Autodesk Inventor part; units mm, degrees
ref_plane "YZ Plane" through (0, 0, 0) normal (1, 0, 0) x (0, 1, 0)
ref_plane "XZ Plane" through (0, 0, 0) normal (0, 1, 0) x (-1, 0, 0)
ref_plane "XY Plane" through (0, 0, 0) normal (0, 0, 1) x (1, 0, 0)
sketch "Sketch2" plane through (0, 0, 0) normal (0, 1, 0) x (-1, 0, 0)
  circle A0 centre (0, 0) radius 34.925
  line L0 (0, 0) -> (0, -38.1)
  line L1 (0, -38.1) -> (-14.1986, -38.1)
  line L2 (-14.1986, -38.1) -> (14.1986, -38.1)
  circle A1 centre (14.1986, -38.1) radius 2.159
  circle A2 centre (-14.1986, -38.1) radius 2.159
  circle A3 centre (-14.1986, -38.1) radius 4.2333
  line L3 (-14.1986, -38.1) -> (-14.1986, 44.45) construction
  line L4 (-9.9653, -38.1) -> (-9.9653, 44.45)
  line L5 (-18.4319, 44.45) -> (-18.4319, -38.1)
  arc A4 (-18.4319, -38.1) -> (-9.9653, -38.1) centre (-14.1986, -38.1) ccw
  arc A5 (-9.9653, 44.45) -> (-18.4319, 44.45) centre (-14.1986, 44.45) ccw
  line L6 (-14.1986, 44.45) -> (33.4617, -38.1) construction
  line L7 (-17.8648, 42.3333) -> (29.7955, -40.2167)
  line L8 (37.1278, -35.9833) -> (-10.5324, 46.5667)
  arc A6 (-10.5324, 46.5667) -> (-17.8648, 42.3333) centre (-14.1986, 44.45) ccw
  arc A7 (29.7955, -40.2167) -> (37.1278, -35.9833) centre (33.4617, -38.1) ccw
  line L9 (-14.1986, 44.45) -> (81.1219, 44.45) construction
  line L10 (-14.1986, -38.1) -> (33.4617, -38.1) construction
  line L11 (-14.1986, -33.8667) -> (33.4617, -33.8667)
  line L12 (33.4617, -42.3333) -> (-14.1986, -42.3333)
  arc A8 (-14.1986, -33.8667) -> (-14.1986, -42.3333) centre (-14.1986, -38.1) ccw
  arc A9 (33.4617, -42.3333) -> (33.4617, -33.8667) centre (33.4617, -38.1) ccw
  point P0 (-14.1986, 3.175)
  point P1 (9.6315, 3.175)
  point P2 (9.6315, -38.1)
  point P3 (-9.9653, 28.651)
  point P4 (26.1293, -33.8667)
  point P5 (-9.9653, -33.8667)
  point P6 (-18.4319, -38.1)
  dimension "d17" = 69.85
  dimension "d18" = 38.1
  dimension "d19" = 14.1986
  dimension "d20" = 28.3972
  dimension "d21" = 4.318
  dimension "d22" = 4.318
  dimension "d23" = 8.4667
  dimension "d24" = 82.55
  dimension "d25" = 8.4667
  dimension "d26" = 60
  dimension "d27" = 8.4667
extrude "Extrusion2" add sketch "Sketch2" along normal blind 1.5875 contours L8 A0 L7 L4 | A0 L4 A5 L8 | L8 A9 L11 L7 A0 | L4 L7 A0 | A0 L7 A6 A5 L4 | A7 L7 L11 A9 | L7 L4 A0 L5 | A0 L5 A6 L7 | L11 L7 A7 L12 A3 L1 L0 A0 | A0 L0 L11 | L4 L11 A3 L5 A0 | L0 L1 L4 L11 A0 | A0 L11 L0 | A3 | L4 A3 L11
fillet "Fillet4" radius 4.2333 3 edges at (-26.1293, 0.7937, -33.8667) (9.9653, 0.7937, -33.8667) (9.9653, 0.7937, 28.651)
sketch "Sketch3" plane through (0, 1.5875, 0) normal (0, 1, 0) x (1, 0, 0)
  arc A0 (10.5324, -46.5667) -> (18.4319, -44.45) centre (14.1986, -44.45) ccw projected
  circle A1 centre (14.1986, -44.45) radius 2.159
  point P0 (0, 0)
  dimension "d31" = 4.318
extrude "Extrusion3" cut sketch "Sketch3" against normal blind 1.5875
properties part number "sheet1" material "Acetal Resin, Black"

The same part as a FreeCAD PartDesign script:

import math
import FreeCAD as App
import Part
import Sketcher
Q = App.Units.Quantity


def edges_at(feature, points):
    """Names of the edges that pass closest to the given points."""
    edges = feature.Shape.Edges
    near = lambda p: min(range(len(edges)), key=lambda i: edges[i].distToShape(Part.Vertex(*p))[0])
    return sorted({f"Edge{near(p) + 1}" for p in points})

doc = App.newDocument("Part")
body = doc.addObject("PartDesign::Body", "Body")

# Sketch on XZ plane
sketch1 = body.newObject("Sketcher::SketchObject", "Sketch")
sketch1.AttachmentSupport = (doc.getObject("XZ_Plane"), [""])
sketch1.MapMode = "FlatFace"
sketch1.addGeometry([
    Part.ArcOfCircle(Part.Circle(App.Vector(14.1986, 44.45, 0), App.Vector(0, 0, 1), 4.2333), math.radians(0), math.radians(149.999784)),  # 0
    Part.LineSegment(App.Vector(18.4319, 44.45, 0), App.Vector(18.4319, -38.1, 0)),  # 1
    Part.ArcOfCircle(Part.Circle(App.Vector(14.1986, -38.1, 0), App.Vector(0, 0, 1), 4.2333), math.radians(-90), math.radians(0)),  # 2
    Part.LineSegment(App.Vector(14.1986, -42.3333, 0), App.Vector(-33.4617, -42.3333, 0)),  # 3
    Part.ArcOfCircle(Part.Circle(App.Vector(-33.4617, -38.1, 0), App.Vector(0, 0, 1), 4.2333), math.radians(149.999107), math.radians(270)),  # 4
    Part.LineSegment(App.Vector(-37.1278, -35.9833, 0), App.Vector(10.5324, 46.5667, 0)),  # 5
    Part.LineSegment(App.Vector(9.9653, 28.650975, 0), App.Vector(-26.129323, -33.8667, 0)),  # 6
    Part.LineSegment(App.Vector(-26.129323, -33.8667, 0), App.Vector(9.9653, -33.8667, 0)),  # 7
    Part.LineSegment(App.Vector(9.9653, -33.8667, 0), App.Vector(9.9653, 28.650975, 0)),  # 8
    Part.Circle(App.Vector(-14.1986, -38.1, 0), App.Vector(0, 0, 1), 2.159),  # 9
    Part.Circle(App.Vector(14.1986, -38.1, 0), App.Vector(0, 0, 1), 2.159),  # 10
], False)
sketch1.addConstraint([
    Sketcher.Constraint("Tangent", 0, 1, 1, 1),
    Sketcher.Constraint("Tangent", 1, 2, 2, 2),
    Sketcher.Constraint("Tangent", 2, 1, 3, 1),
    Sketcher.Constraint("Tangent", 3, 2, 4, 2),
    Sketcher.Constraint("Tangent", 4, 1, 5, 1),
    Sketcher.Constraint("Tangent", 5, 2, 0, 2),
    Sketcher.Constraint("Coincident", 6, 2, 7, 1),
    Sketcher.Constraint("Coincident", 7, 2, 8, 1),
    Sketcher.Constraint("Coincident", 8, 2, 6, 1),
    Sketcher.Constraint("Vertical", 1),
    Sketcher.Constraint("Horizontal", 3),
    Sketcher.Constraint("Horizontal", 7),
    Sketcher.Constraint("Vertical", 8),
    Sketcher.Constraint("Coincident", 10, 3, 2, 3),
    Sketcher.Constraint("Equal", 0, 2),
    Sketcher.Constraint("Equal", 2, 4),
    Sketcher.Constraint("Equal", 9, 10),
    Sketcher.Constraint("Symmetric", 2, 3, 9, 3, -2),
    Sketcher.Constraint("Parallel", 5, 6),
    Sketcher.Constraint("Diameter", 9, Q("0.17 in")),
    Sketcher.Constraint("Angle", 5, Q("60 deg")),
    Sketcher.Constraint("DistanceY", 1, 2, 1, 1, Q("3.25 in")),
    Sketcher.Constraint("DistanceY", 2, 3, -1, 1, Q("1.5 in")),
    Sketcher.Constraint("Radius", 0, Q("4.2333 mm")),
    Sketcher.Constraint("DistanceX", -1, 1, 0, 3, Q("0.559 in")),
    Sketcher.Constraint("DistanceY", 3, 2, 6, 2, Q("8.4666 mm")),
    Sketcher.Constraint("DistanceX", 7, 2, 1, 2, Q("8.4666 mm")),
    Sketcher.Constraint("DistanceY", -1, 1, 8, 2, Q("1.128 in")),
])
pad1 = body.newObject("PartDesign::Pad", "Pad")
pad1.Profile = sketch1
pad1.Length = Q("0.0625 in")
pad1.Reversed = True
doc.recompute()

fillet = body.newObject("PartDesign::Fillet", "Fillet")
fillet.Base = (pad1, edges_at(pad1, [(-26.129, 0.794, -33.867), (9.965, 0.794, -33.867), (9.965, 0.794, 28.651)]))
fillet.Radius = 4.2333

# Sketch on XZ plane
sketch2 = body.newObject("Sketcher::SketchObject", "Sketch001")
sketch2.AttachmentSupport = (doc.getObject("XZ_Plane"), [""])
sketch2.MapMode = "FlatFace"
sketch2.AttachmentOffset = App.Placement(App.Vector(0, 0, -0.0625 * 25.4), App.Rotation())
sketch2.addGeometry(Part.Circle(App.Vector(14.1986, 44.45, 0), App.Vector(0, 0, 1), 2.159), False)
sketch2.addConstraint([
    Sketcher.Constraint("Diameter", 0, Q("0.17 in")),
    Sketcher.Constraint("DistanceY", -1, 1, 0, 3, Q("1.75 in")),
    Sketcher.Constraint("DistanceX", -1, 1, 0, 3, Q("0.559 in")),
])
pocket1 = body.newObject("PartDesign::Pocket", "Pocket")
pocket1.Profile = sketch2
pocket1.Length = Q("0.0625 in")
pocket1.Reversed = True

doc.recompute()
